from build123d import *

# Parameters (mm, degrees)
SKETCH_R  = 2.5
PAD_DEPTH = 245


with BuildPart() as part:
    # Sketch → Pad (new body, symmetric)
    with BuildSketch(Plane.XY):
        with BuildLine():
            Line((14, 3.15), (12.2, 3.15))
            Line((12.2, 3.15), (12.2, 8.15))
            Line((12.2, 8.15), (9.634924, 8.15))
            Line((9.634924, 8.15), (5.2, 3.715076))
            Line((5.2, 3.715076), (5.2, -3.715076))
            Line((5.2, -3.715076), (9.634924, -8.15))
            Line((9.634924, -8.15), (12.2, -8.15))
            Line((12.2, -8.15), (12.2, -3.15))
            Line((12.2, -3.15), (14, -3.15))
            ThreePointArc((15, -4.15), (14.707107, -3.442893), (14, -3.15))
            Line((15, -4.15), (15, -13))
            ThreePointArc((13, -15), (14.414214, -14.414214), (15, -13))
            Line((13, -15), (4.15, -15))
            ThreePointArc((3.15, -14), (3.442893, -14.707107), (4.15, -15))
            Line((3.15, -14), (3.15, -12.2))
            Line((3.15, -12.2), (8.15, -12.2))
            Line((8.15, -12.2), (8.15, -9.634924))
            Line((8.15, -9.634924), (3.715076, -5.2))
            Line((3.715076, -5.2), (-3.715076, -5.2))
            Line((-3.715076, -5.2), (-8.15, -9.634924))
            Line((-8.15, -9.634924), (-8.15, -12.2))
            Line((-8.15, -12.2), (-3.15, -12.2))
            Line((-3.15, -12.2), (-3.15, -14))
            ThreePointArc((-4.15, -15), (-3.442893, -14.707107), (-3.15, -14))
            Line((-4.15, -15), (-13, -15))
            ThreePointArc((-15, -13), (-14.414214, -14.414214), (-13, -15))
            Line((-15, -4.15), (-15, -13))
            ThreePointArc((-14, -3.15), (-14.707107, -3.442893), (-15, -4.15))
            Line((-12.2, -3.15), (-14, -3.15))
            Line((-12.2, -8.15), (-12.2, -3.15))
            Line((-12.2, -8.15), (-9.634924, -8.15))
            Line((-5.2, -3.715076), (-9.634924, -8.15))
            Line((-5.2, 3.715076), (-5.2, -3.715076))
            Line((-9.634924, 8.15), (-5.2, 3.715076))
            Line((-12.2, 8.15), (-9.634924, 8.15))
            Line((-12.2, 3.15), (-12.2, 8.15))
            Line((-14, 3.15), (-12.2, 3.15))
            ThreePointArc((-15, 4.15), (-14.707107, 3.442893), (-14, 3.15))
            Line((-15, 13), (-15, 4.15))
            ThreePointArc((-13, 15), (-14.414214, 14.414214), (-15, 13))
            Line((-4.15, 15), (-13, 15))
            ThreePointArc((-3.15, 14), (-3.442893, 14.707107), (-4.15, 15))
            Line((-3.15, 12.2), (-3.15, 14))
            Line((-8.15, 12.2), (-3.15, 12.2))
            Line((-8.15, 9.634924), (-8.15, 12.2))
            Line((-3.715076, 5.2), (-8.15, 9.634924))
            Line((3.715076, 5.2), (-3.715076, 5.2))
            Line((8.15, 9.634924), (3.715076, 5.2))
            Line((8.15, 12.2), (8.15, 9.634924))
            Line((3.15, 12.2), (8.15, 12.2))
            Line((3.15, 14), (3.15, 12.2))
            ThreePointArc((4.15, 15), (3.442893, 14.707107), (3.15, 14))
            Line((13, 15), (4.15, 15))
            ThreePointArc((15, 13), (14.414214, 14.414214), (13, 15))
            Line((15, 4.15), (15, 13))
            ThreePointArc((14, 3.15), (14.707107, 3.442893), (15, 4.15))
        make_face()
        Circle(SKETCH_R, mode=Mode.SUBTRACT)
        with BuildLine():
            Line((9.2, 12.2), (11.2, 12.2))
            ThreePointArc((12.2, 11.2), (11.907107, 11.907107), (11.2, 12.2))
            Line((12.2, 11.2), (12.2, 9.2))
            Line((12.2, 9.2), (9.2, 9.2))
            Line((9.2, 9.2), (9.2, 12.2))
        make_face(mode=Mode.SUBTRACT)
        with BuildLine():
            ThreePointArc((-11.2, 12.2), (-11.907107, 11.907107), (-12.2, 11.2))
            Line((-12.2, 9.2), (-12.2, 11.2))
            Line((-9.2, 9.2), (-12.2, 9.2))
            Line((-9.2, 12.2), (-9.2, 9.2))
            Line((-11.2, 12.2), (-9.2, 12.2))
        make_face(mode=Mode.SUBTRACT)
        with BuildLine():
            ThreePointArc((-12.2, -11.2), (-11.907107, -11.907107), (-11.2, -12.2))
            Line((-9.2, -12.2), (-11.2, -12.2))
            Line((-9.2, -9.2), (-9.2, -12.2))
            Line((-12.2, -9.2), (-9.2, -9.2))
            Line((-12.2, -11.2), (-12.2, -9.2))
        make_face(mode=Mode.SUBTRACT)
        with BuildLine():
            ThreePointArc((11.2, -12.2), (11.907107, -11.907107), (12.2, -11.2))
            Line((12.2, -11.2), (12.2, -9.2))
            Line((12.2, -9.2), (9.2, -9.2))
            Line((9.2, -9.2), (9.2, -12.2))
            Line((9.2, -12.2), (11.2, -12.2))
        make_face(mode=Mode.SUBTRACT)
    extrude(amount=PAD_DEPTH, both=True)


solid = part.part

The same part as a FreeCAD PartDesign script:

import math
import FreeCAD as App
import Part
import Sketcher
from FreeCAD import Vector
Q = App.Units.Quantity

doc = App.newDocument("Part")
body = doc.addObject("PartDesign::Body", "Body")

sketch1 = doc.addObject("Sketcher::SketchObject", "Sketch")
body.addObject(sketch1)
sketch1.AttachmentSupport = (doc.XY_Plane, [""])
sketch1.MapMode = "FlatFace"
sketch1.addGeometry([
    Part.LineSegment(Vector(12.2, 3.15, 0), Vector(14, 3.15, 0)),
    Part.ArcOfCircle(Part.Circle(Vector(14.000001, 4.149999, 0), Vector(0, 0, 1), 0.999999), math.radians(-90.000043), math.radians(0.000043)),
    Part.LineSegment(Vector(15, 4.15, 0), Vector(15, 13, 0)),
    Part.ArcOfCircle(Part.Circle(Vector(13.000001, 13.000001, 0), Vector(0, 0, 1), 1.999999), math.radians(-0.000043), math.radians(90.000043)),
    Part.LineSegment(Vector(13, 15, 0), Vector(4.15, 15, 0)),
    Part.ArcOfCircle(Part.Circle(Vector(4.149999, 14.000001, 0), Vector(0, 0, 1), 0.999999), math.radians(89.999957), math.radians(180.000043)),
    Part.LineSegment(Vector(3.15, 14, 0), Vector(3.15, 12.2, 0)),
    Part.LineSegment(Vector(3.15, 12.2, 0), Vector(8.15, 12.2, 0)),
    Part.LineSegment(Vector(8.15, 12.2, 0), Vector(8.15, 9.634924, 0)),
    Part.LineSegment(Vector(8.15, 9.634924, 0), Vector(3.715076, 5.2, 0)),
    Part.LineSegment(Vector(3.715076, 5.2, 0), Vector(-3.715076, 5.2, 0)),
    Part.LineSegment(Vector(-3.715076, 5.2, 0), Vector(-8.15, 9.634924, 0)),
    Part.LineSegment(Vector(-8.15, 9.634924, 0), Vector(-8.15, 12.2, 0)),
    Part.LineSegment(Vector(-8.15, 12.2, 0), Vector(-3.15, 12.2, 0)),
    Part.LineSegment(Vector(-3.15, 12.2, 0), Vector(-3.15, 14, 0)),
    Part.ArcOfCircle(Part.Circle(Vector(-4.149999, 14.000001, 0), Vector(0, 0, 1), 0.999999), math.radians(-0.000043), math.radians(90.000043)),
    Part.LineSegment(Vector(-4.15, 15, 0), Vector(-13, 15, 0)),
    Part.ArcOfCircle(Part.Circle(Vector(-13.000001, 13.000001, 0), Vector(0, 0, 1), 1.999999), math.radians(89.999957), math.radians(180.000043)),
    Part.LineSegment(Vector(-15, 13, 0), Vector(-15, 4.15, 0)),
    Part.ArcOfCircle(Part.Circle(Vector(-14.000001, 4.149999, 0), Vector(0, 0, 1), 0.999999), math.radians(179.999957), math.radians(270.000043)),
    Part.LineSegment(Vector(-14, 3.15, 0), Vector(-12.2, 3.15, 0)),
    Part.LineSegment(Vector(-12.2, 3.15, 0), Vector(-12.2, 8.15, 0)),
    Part.LineSegment(Vector(-12.2, 8.15, 0), Vector(-9.634924, 8.15, 0)),
    Part.LineSegment(Vector(-9.634924, 8.15, 0), Vector(-5.2, 3.715076, 0)),
    Part.LineSegment(Vector(-5.2, 3.715076, 0), Vector(-5.2, -3.715076, 0)),
    Part.LineSegment(Vector(-5.2, -3.715076, 0), Vector(-9.634924, -8.15, 0)),
    Part.LineSegment(Vector(-9.634924, -8.15, 0), Vector(-12.2, -8.15, 0)),
    Part.LineSegment(Vector(-12.2, -8.15, 0), Vector(-12.2, -3.15, 0)),
    Part.LineSegment(Vector(-12.2, -3.15, 0), Vector(-14, -3.15, 0)),
    Part.ArcOfCircle(Part.Circle(Vector(-14.000001, -4.149999, 0), Vector(0, 0, 1), 0.999999), math.radians(89.999957), math.radians(180.000043)),
    Part.LineSegment(Vector(-15, -4.15, 0), Vector(-15, -13, 0)),
    Part.ArcOfCircle(Part.Circle(Vector(-13.000001, -13.000001, 0), Vector(0, 0, 1), 1.999999), math.radians(179.999957), math.radians(270.000043)),
    Part.LineSegment(Vector(-13, -15, 0), Vector(-4.15, -15, 0)),
    Part.ArcOfCircle(Part.Circle(Vector(-4.149999, -14.000001, 0), Vector(0, 0, 1), 0.999999), math.radians(-90.000043), math.radians(0.000043)),
    Part.LineSegment(Vector(-3.15, -14, 0), Vector(-3.15, -12.2, 0)),
    Part.LineSegment(Vector(-3.15, -12.2, 0), Vector(-8.15, -12.2, 0)),
    Part.LineSegment(Vector(-8.15, -12.2, 0), Vector(-8.15, -9.634924, 0)),
    Part.LineSegment(Vector(-8.15, -9.634924, 0), Vector(-3.715076, -5.2, 0)),
    Part.LineSegment(Vector(-3.715076, -5.2, 0), Vector(3.715076, -5.2, 0)),
    Part.LineSegment(Vector(3.715076, -5.2, 0), Vector(8.15, -9.634924, 0)),
    Part.LineSegment(Vector(8.15, -9.634924, 0), Vector(8.15, -12.2, 0)),
    Part.LineSegment(Vector(8.15, -12.2, 0), Vector(3.15, -12.2, 0)),
    Part.LineSegment(Vector(3.15, -12.2, 0), Vector(3.15, -14, 0)),
    Part.ArcOfCircle(Part.Circle(Vector(4.149999, -14.000001, 0), Vector(0, 0, 1), 0.999999), math.radians(179.999957), math.radians(270.000043)),
    Part.LineSegment(Vector(4.15, -15, 0), Vector(13, -15, 0)),
    Part.ArcOfCircle(Part.Circle(Vector(13.000001, -13.000001, 0), Vector(0, 0, 1), 1.999999), math.radians(-90.000043), math.radians(0.000043)),
    Part.LineSegment(Vector(15, -13, 0), Vector(15, -4.15, 0)),
    Part.ArcOfCircle(Part.Circle(Vector(14.000001, -4.149999, 0), Vector(0, 0, 1), 0.999999), math.radians(-0.000043), math.radians(90.000043)),
    Part.LineSegment(Vector(14, -3.15, 0), Vector(12.2, -3.15, 0)),
    Part.LineSegment(Vector(12.2, -3.15, 0), Vector(12.2, -8.15, 0)),
    Part.LineSegment(Vector(12.2, -8.15, 0), Vector(9.634924, -8.15, 0)),
    Part.LineSegment(Vector(9.634924, -8.15, 0), Vector(5.2, -3.715076, 0)),
    Part.LineSegment(Vector(5.2, -3.715076, 0), Vector(5.2, 3.715076, 0)),
    Part.LineSegment(Vector(5.2, 3.715076, 0), Vector(9.634924, 8.15, 0)),
    Part.LineSegment(Vector(9.634924, 8.15, 0), Vector(12.2, 8.15, 0)),
    Part.LineSegment(Vector(12.2, 8.15, 0), Vector(12.2, 3.15, 0)),
    Part.LineSegment(Vector(11.2, -12.2, 0), Vector(9.2, -12.2, 0)),
    Part.LineSegment(Vector(9.2, -12.2, 0), Vector(9.2, -9.2, 0)),
    Part.LineSegment(Vector(9.2, -9.2, 0), Vector(12.2, -9.2, 0)),
    Part.LineSegment(Vector(12.2, -9.2, 0), Vector(12.2, -11.2, 0)),
    Part.ArcOfCircle(Part.Circle(Vector(11.200001, -11.200001, 0), Vector(0, 0, 1), 0.999999), math.radians(-90.000043), math.radians(0.000043)),
    Part.LineSegment(Vector(-12.2, -11.2, 0), Vector(-12.2, -9.2, 0)),
    Part.LineSegment(Vector(-12.2, -9.2, 0), Vector(-9.2, -9.2, 0)),
    Part.LineSegment(Vector(-9.2, -9.2, 0), Vector(-9.2, -12.2, 0)),
    Part.LineSegment(Vector(-9.2, -12.2, 0), Vector(-11.2, -12.2, 0)),
    Part.ArcOfCircle(Part.Circle(Vector(-11.200001, -11.200001, 0), Vector(0, 0, 1), 0.999999), math.radians(179.999957), math.radians(270.000043)),
    Part.LineSegment(Vector(9.2, 12.2, 0), Vector(11.2, 12.2, 0)),
    Part.ArcOfCircle(Part.Circle(Vector(11.200001, 11.200001, 0), Vector(0, 0, 1), 0.999999), math.radians(-0.000043), math.radians(90.000043)),
    Part.LineSegment(Vector(12.2, 11.2, 0), Vector(12.2, 9.2, 0)),
    Part.LineSegment(Vector(12.2, 9.2, 0), Vector(9.2, 9.2, 0)),
    Part.LineSegment(Vector(9.2, 9.2, 0), Vector(9.2, 12.2, 0)),
    Part.Circle(Vector(0, 0, 0), Vector(0, 0, 1), 2.5),
    Part.LineSegment(Vector(-11.2, 12.2, 0), Vector(-9.2, 12.2, 0)),
    Part.LineSegment(Vector(-9.2, 12.2, 0), Vector(-9.2, 9.2, 0)),
    Part.LineSegment(Vector(-9.2, 9.2, 0), Vector(-12.2, 9.2, 0)),
    Part.LineSegment(Vector(-12.2, 9.2, 0), Vector(-12.2, 11.2, 0)),
    Part.ArcOfCircle(Part.Circle(Vector(-11.200001, 11.200001, 0), Vector(0, 0, 1), 0.999999), math.radians(89.999957), math.radians(180.000043)),
], False)
sketch1.addConstraint([
    Sketcher.Constraint("Tangent", 0, 2, 1, 1),
    Sketcher.Constraint("Tangent", 1, 2, 2, 1),
    Sketcher.Constraint("Tangent", 2, 2, 3, 1),
    Sketcher.Constraint("Tangent", 3, 2, 4, 1),
    Sketcher.Constraint("Tangent", 4, 2, 5, 1),
    Sketcher.Constraint("Tangent", 5, 2, 6, 1),
    Sketcher.Constraint("Coincident", 6, 2, 7, 1),
    Sketcher.Constraint("Coincident", 7, 2, 8, 1),
    Sketcher.Constraint("Coincident", 8, 2, 9, 1),
    Sketcher.Constraint("Coincident", 9, 2, 10, 1),
    Sketcher.Constraint("Coincident", 10, 2, 11, 1),
    Sketcher.Constraint("Coincident", 11, 2, 12, 1),
    Sketcher.Constraint("Coincident", 12, 2, 13, 1),
    Sketcher.Constraint("Coincident", 13, 2, 14, 1),
    Sketcher.Constraint("Tangent", 14, 2, 15, 1),
    Sketcher.Constraint("Tangent", 15, 2, 16, 1),
    Sketcher.Constraint("Tangent", 16, 2, 17, 1),
    Sketcher.Constraint("Tangent", 17, 2, 18, 1),
    Sketcher.Constraint("Tangent", 18, 2, 19, 1),
    Sketcher.Constraint("Tangent", 19, 2, 20, 1),
    Sketcher.Constraint("Coincident", 20, 2, 21, 1),
    Sketcher.Constraint("Coincident", 21, 2, 22, 1),
    Sketcher.Constraint("Coincident", 22, 2, 23, 1),
    Sketcher.Constraint("Coincident", 23, 2, 24, 1),
    Sketcher.Constraint("Coincident", 24, 2, 25, 1),
    Sketcher.Constraint("Coincident", 25, 2, 26, 1),
    Sketcher.Constraint("Coincident", 26, 2, 27, 1),
    Sketcher.Constraint("Coincident", 27, 2, 28, 1),
    Sketcher.Constraint("Tangent", 28, 2, 29, 1),
    Sketcher.Constraint("Tangent", 29, 2, 30, 1),
    Sketcher.Constraint("Tangent", 30, 2, 31, 1),
    Sketcher.Constraint("Tangent", 31, 2, 32, 1),
    Sketcher.Constraint("Tangent", 32, 2, 33, 1),
    Sketcher.Constraint("Tangent", 33, 2, 34, 1),
    Sketcher.Constraint("Coincident", 34, 2, 35, 1),
    Sketcher.Constraint("Coincident", 35, 2, 36, 1),
    Sketcher.Constraint("Coincident", 36, 2, 37, 1),
    Sketcher.Constraint("Coincident", 37, 2, 38, 1),
    Sketcher.Constraint("Coincident", 38, 2, 39, 1),
    Sketcher.Constraint("Coincident", 39, 2, 40, 1),
    Sketcher.Constraint("Coincident", 40, 2, 41, 1),
    Sketcher.Constraint("Coincident", 41, 2, 42, 1),
    Sketcher.Constraint("Tangent", 42, 2, 43, 1),
    Sketcher.Constraint("Tangent", 43, 2, 44, 1),
    Sketcher.Constraint("Tangent", 44, 2, 45, 1),
    Sketcher.Constraint("Tangent", 45, 2, 46, 1),
    Sketcher.Constraint("Tangent", 46, 2, 47, 1),
    Sketcher.Constraint("Tangent", 47, 2, 48, 1),
    Sketcher.Constraint("Coincident", 48, 2, 49, 1),
    Sketcher.Constraint("Coincident", 49, 2, 50, 1),
    Sketcher.Constraint("Coincident", 50, 2, 51, 1),
    Sketcher.Constraint("Coincident", 51, 2, 52, 1),
    Sketcher.Constraint("Coincident", 52, 2, 53, 1),
    Sketcher.Constraint("Coincident", 53, 2, 54, 1),
    Sketcher.Constraint("Coincident", 54, 2, 55, 1),
    Sketcher.Constraint("Coincident", 55, 2, 0, 1),
    Sketcher.Constraint("Coincident", 56, 2, 57, 1),
    Sketcher.Constraint("Coincident", 57, 2, 58, 1),
    Sketcher.Constraint("Coincident", 58, 2, 59, 1),
    Sketcher.Constraint("Tangent", 59, 2, 60, 2),
    Sketcher.Constraint("Tangent", 60, 1, 56, 1),
    Sketcher.Constraint("Coincident", 61, 2, 62, 1),
    Sketcher.Constraint("Coincident", 62, 2, 63, 1),
    Sketcher.Constraint("Coincident", 63, 2, 64, 1),
    Sketcher.Constraint("Tangent", 64, 2, 65, 2),
    Sketcher.Constraint("Tangent", 65, 1, 61, 1),
    Sketcher.Constraint("Tangent", 66, 2, 67, 2),
    Sketcher.Constraint("Tangent", 67, 1, 68, 1),
    Sketcher.Constraint("Coincident", 68, 2, 69, 1),
    Sketcher.Constraint("Coincident", 69, 2, 70, 1),
    Sketcher.Constraint("Coincident", 70, 2, 66, 1),
    Sketcher.Constraint("Coincident", 72, 2, 73, 1),
    Sketcher.Constraint("Coincident", 73, 2, 74, 1),
    Sketcher.Constraint("Coincident", 74, 2, 75, 1),
    Sketcher.Constraint("Tangent", 75, 2, 76, 2),
    Sketcher.Constraint("Tangent", 76, 1, 72, 1),
    Sketcher.Constraint("Horizontal", 0),
    Sketcher.Constraint("Vertical", 2),
    Sketcher.Constraint("Horizontal", 4),
    Sketcher.Constraint("Vertical", 6),
    Sketcher.Constraint("Horizontal", 7),
    Sketcher.Constraint("Vertical", 8),
    Sketcher.Constraint("Horizontal", 10),
    Sketcher.Constraint("Vertical", 12),
    Sketcher.Constraint("Horizontal", 13),
    Sketcher.Constraint("Vertical", 14),
    Sketcher.Constraint("Horizontal", 16),
    Sketcher.Constraint("Vertical", 18),
    Sketcher.Constraint("Horizontal", 20),
    Sketcher.Constraint("Vertical", 21),
    Sketcher.Constraint("Horizontal", 22),
    Sketcher.Constraint("Vertical", 24),
    Sketcher.Constraint("Horizontal", 26),
    Sketcher.Constraint("Vertical", 27),
    Sketcher.Constraint("Horizontal", 28),
    Sketcher.Constraint("Vertical", 30),
    Sketcher.Constraint("Horizontal", 32),
    Sketcher.Constraint("Vertical", 34),
    Sketcher.Constraint("Horizontal", 35),
    Sketcher.Constraint("Vertical", 36),
    Sketcher.Constraint("Horizontal", 38),
    Sketcher.Constraint("Vertical", 40),
    Sketcher.Constraint("Horizontal", 41),
    Sketcher.Constraint("Vertical", 42),
    Sketcher.Constraint("Horizontal", 44),
    Sketcher.Constraint("Vertical", 46),
    Sketcher.Constraint("Horizontal", 48),
    Sketcher.Constraint("Vertical", 49),
    Sketcher.Constraint("Horizontal", 50),
    Sketcher.Constraint("Vertical", 52),
    Sketcher.Constraint("Horizontal", 54),
    Sketcher.Constraint("Vertical", 55),
    Sketcher.Constraint("Horizontal", 56),
    Sketcher.Constraint("Vertical", 57),
    Sketcher.Constraint("Horizontal", 58),
    Sketcher.Constraint("Vertical", 59),
    Sketcher.Constraint("Vertical", 61),
    Sketcher.Constraint("Horizontal", 62),
    Sketcher.Constraint("Vertical", 63),
    Sketcher.Constraint("Horizontal", 64),
    Sketcher.Constraint("Horizontal", 66),
    Sketcher.Constraint("Vertical", 68),
    Sketcher.Constraint("Horizontal", 69),
    Sketcher.Constraint("Vertical", 70),
    Sketcher.Constraint("Horizontal", 72),
    Sketcher.Constraint("Vertical", 73),
    Sketcher.Constraint("Horizontal", 74),
    Sketcher.Constraint("Vertical", 75),
    Sketcher.Constraint("Coincident", 71, 3, -1, 1),
    Sketcher.Constraint("Equal", 1, 5),
    Sketcher.Constraint("Equal", 5, 15),
    Sketcher.Constraint("Equal", 3, 17),
    Sketcher.Constraint("Equal", 15, 19),
    Sketcher.Constraint("Equal", 19, 29),
    Sketcher.Constraint("Equal", 17, 31),
    Sketcher.Constraint("Equal", 29, 33),
    Sketcher.Constraint("Equal", 33, 43),
    Sketcher.Constraint("Equal", 31, 45),
    Sketcher.Constraint("Equal", 43, 47),
    Sketcher.Constraint("Equal", 47, 60),
    Sketcher.Constraint("Equal", 60, 65),
    Sketcher.Constraint("Equal", 65, 67),
    Sketcher.Constraint("Equal", 67, 76),
    Sketcher.Constraint("Symmetric", 1, 3, 29, 3, -1, 1),
    Sketcher.Constraint("Symmetric", 5, 3, 33, 3, -1, 1),
    Sketcher.Constraint("Symmetric", 15, 3, 43, 3, -1, 1),
    Sketcher.Constraint("Symmetric", 19, 3, 47, 3, -1, 1),
    Sketcher.Constraint("Symmetric", 65, 3, 67, 3, -1, 1),
    Sketcher.Constraint("Symmetric", 60, 3, 76, 3, -1, 1),
    Sketcher.Constraint("Symmetric", 7, 2, 35, 2, -1, 1),
    Sketcher.Constraint("Symmetric", 9, 2, 37, 2, -1, 1),
    Sketcher.Constraint("Symmetric", 11, 2, 39, 2, -1, 1),
    Sketcher.Constraint("Symmetric", 21, 2, 49, 2, -1, 1),
    Sketcher.Constraint("Symmetric", 23, 2, 51, 2, -1, 1),
    Sketcher.Constraint("Symmetric", 25, 2, 53, 2, -1, 1),
    Sketcher.Constraint("Symmetric", 62, 2, 69, 2, -1, 1),
    Sketcher.Constraint("Symmetric", 57, 2, 73, 2, -1, 1),
    Sketcher.Constraint("Symmetric", 5, 3, 15, 3, -2),
    Sketcher.Constraint("Symmetric", 1, 3, 19, 3, -2),
    Sketcher.Constraint("Symmetric", 60, 3, 65, 3, -2),
    Sketcher.Constraint("Symmetric", 8, 2, 11, 2, -2),
    Sketcher.Constraint("Symmetric", 26, 2, 49, 2, -2),
    Sketcher.Constraint("Symmetric", 57, 2, 62, 2, -2),
    Sketcher.Constraint("Perpendicular", 9, 11),
    Sketcher.Constraint("Parallel", 11, 23),
    Sketcher.Constraint("Perpendicular", 23, 25),
    Sketcher.Constraint("Parallel", 25, 37),
    Sketcher.Constraint("Perpendicular", 37, 39),
    Sketcher.Constraint("Parallel", 39, 51),
    Sketcher.Constraint("Perpendicular", 51, 53),
    Sketcher.Constraint("Horizontal", 7, 2, 12, 2),
    Sketcher.Constraint("Horizontal", 35, 2, 40, 2),
    Sketcher.Constraint("Horizontal", 24, 2, 51, 2),
    Sketcher.Constraint("Horizontal", 41, 2, 56, 2),
    Sketcher.Constraint("Vertical", 22, 2, 25, 2),
    Sketcher.Constraint("Vertical", 49, 2, 54, 2),
    Sketcher.Constraint("Vertical", 55, 2, 58, 2),
    Sketcher.Constraint("Equal", 44, 2),
    Sketcher.Constraint("Equal", 48, 6),
    Sketcher.Constraint("Equal", 54, 8),
    Sketcher.Constraint("Equal", 41, 21),
    Sketcher.Constraint("Equal", 38, 24),
    Sketcher.Constraint("Equal", 74, 57),
    Sketcher.Constraint("Equal", 11, 23),
    Sketcher.Constraint("Diameter", 71, Q("5 mm")),
    Sketcher.Constraint("Radius", 1, Q("0.999999 mm")),
    Sketcher.Constraint("Radius", 3, Q("1.999999 mm")),
    Sketcher.Constraint("DistanceX", 7, 1, 7, 2, Q("5 mm")),
    Sketcher.Constraint("DistanceX", 56, 2, 56, 1, Q("2 mm")),
    Sketcher.Constraint("DistanceX", 0, 1, 0, 2, Q("1.8 mm")),
    Sketcher.Constraint("DistanceX", -1, 1, 1, 3, Q("14.000001 mm")),
    Sketcher.Constraint("DistanceX", 4, 2, 4, 1, Q("8.85 mm")),
    Sketcher.Constraint("DistanceY", -1, 1, 9, 2, Q("5.2 mm")),
    Sketcher.Constraint("DistanceX", 10, 2, 10, 1, Q("7.430152 mm")),
])
pad1 = doc.addObject("PartDesign::Pad", "Pad")
body.addObject(pad1)
pad1.Profile = sketch1
pad1.Length = 490
pad1.Midplane = True

doc.recompute()
